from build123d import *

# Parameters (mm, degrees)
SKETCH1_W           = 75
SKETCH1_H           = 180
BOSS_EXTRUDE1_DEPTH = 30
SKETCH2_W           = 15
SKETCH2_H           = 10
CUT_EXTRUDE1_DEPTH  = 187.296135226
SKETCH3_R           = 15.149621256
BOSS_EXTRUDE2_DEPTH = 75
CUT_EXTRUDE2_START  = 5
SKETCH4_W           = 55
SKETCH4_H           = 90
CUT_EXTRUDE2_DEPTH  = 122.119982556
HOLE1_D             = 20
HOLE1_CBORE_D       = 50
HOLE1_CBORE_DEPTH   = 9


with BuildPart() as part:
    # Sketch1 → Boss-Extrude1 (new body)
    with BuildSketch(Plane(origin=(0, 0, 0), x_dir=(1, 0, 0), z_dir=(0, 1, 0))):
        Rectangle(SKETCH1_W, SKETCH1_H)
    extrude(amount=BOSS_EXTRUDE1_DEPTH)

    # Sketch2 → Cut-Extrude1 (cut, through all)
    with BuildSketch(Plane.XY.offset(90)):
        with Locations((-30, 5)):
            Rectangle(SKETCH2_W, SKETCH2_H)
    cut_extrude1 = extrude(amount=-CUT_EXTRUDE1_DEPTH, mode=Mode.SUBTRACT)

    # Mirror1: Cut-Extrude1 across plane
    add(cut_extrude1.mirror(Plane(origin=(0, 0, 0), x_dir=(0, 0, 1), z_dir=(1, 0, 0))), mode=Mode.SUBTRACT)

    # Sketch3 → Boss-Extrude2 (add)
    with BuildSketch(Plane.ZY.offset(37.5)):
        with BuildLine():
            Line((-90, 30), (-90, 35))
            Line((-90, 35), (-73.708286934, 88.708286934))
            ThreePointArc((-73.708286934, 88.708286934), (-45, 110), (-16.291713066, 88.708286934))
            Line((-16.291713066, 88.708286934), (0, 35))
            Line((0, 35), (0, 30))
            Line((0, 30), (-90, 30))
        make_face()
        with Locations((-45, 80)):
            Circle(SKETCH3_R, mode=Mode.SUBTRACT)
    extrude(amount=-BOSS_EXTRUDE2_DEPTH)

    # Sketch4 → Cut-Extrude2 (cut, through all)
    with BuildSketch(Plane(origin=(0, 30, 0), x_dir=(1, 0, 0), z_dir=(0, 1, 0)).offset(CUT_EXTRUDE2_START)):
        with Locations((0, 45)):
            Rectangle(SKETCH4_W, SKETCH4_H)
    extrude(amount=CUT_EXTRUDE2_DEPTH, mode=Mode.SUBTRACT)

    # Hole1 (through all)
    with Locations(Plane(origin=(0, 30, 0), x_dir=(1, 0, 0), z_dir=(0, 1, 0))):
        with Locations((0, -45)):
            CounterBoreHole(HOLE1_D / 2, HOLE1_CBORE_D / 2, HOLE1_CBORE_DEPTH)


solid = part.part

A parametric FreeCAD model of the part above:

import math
import FreeCAD as App
import Part
import Sketcher


def add_polygon(sketch, points):
    """Adds a closed chain of lines whose ends are joined by coincident constraints."""
    first, n = sketch.GeometryCount, len(points)
    for a, b in zip(points, points[1:] + points[:1]):
        sketch.addGeometry(Part.LineSegment(App.Vector(*a, 0), App.Vector(*b, 0)), False)
    for i in range(n):
        sketch.addConstraint(Sketcher.Constraint("Coincident", first + i, 2, first + (i + 1) % n, 1))

doc = App.newDocument("Part")
body = doc.addObject("PartDesign::Body", "Body")

sketch1 = body.newObject("Sketcher::SketchObject", "Sketch")
sketch1.AttachmentSupport = (doc.getObject("XZ_Plane"), [""])
sketch1.MapMode = "FlatFace"
add_polygon(sketch1, [(-38, -90), (-38, 90), (38, 90), (38, -90)])
sketch1.addConstraint(Sketcher.Constraint("Vertical", 0))
sketch1.addConstraint(Sketcher.Constraint("Horizontal", 1))
sketch1.addConstraint(Sketcher.Constraint("Vertical", 2))
sketch1.addConstraint(Sketcher.Constraint("Horizontal", 3))
sketch1.addConstraint(Sketcher.Constraint("Symmetric", 0, 2, 2, 2, -1, 1))
sketch1.addConstraint(Sketcher.Constraint("DistanceX", 1, 1, 1, 2, 75.0))
sketch1.addConstraint(Sketcher.Constraint("DistanceY", 0, 1, 0, 2, 180.0))
pad1 = body.newObject("PartDesign::Pad", "Pad")
pad1.Profile = sketch1
pad1.Length = 30
pad1.Reversed = True

sketch2 = body.newObject("Sketcher::SketchObject", "Sketch001")
sketch2.AttachmentSupport = (doc.getObject("XY_Plane"), [""])
sketch2.MapMode = "FlatFace"
sketch2.AttachmentOffset = App.Placement(App.Vector(0, 0, 90), App.Rotation())
add_polygon(sketch2, [(-38, 10), (-38, 0), (-22, 0), (-22, 10)])
sketch2.addConstraint(Sketcher.Constraint("Vertical", 0))
sketch2.addConstraint(Sketcher.Constraint("Horizontal", 1))
sketch2.addConstraint(Sketcher.Constraint("Vertical", 2))
sketch2.addConstraint(Sketcher.Constraint("Horizontal", 3))
sketch2.addConstraint(Sketcher.Constraint("PointOnObject", 0, 2, -1))
sketch2.addConstraint(Sketcher.Constraint("DistanceX", 1, 1, 1, 2, 15.0))
sketch2.addConstraint(Sketcher.Constraint("DistanceY", 0, 2, 0, 1, 10.0))
sketch2.addConstraint(Sketcher.Constraint("DistanceX", 0, 2, -1, 1, 37.5))
pocket1 = body.newObject("PartDesign::Pocket", "Pocket")
pocket1.Profile = sketch2
pocket1.Type = "ThroughAll"
doc.recompute()

mirrored = body.newObject("PartDesign::Mirrored", "Mirrored")
mirrored.Originals = [pocket1]
mirrored.MirrorPlane = (doc.getObject("YZ_Plane"), [""])
body.Tip = mirrored

sketch3 = body.newObject("Sketcher::SketchObject", "Sketch002")
sketch3.AttachmentSupport = (doc.getObject("YZ_Plane"), [""])
sketch3.MapMode = "FlatFace"
sketch3.AttachmentOffset = App.Placement(App.Vector(0, 0, -37.5), App.Rotation())
sketch3.addGeometry(Part.LineSegment(App.Vector(35, -90, 0), App.Vector(30, -90, 0)), False)
sketch3.addGeometry(Part.LineSegment(App.Vector(30, -90, 0), App.Vector(30, 0, 0)), False)
sketch3.addGeometry(Part.LineSegment(App.Vector(30, 0, 0), App.Vector(35, 0, 0)), False)
sketch3.addGeometry(Part.LineSegment(App.Vector(35, 0, 0), App.Vector(89, -16, 0)), False)
sketch3.addGeometry(Part.ArcOfCircle(Part.Circle(App.Vector(80, -45, 0), App.Vector(0, 0, 1), 30), math.radians(-73), math.radians(73)), False)
sketch3.addGeometry(Part.LineSegment(App.Vector(89, -74, 0), App.Vector(35, -90, 0)), False)
sketch3.addGeometry(Part.Circle(App.Vector(80, -45, 0), App.Vector(0, 0, 1), 15), False)
sketch3.addConstraint(Sketcher.Constraint("Coincident", 0, 2, 1, 1))
sketch3.addConstraint(Sketcher.Constraint("Coincident", 1, 2, 2, 1))
sketch3.addConstraint(Sketcher.Constraint("Coincident", 2, 2, 3, 1))
sketch3.addConstraint(Sketcher.Constraint("Tangent", 3, 2, 4, 2))
sketch3.addConstraint(Sketcher.Constraint("Tangent", 4, 1, 5, 1))
sketch3.addConstraint(Sketcher.Constraint("Coincident", 5, 2, 0, 1))
sketch3.addConstraint(Sketcher.Constraint("Horizontal", 0))
sketch3.addConstraint(Sketcher.Constraint("Vertical", 1))
sketch3.addConstraint(Sketcher.Constraint("Horizontal", 2))
sketch3.addConstraint(Sketcher.Constraint("Coincident", 6, 3, 4, 3))
sketch3.addConstraint(Sketcher.Constraint("PointOnObject", 1, 2, -1))
sketch3.addConstraint(Sketcher.Constraint("Vertical", 3, 2, 4, 1))
sketch3.addConstraint(Sketcher.Constraint("Vertical", 2, 2, 5, 2))
sketch3.addConstraint(Sketcher.Constraint("Radius", 4, 30.0))
sketch3.addConstraint(Sketcher.Constraint("DistanceX", 0, 2, 0, 1, 5.0))
sketch3.addConstraint(Sketcher.Constraint("DistanceY", 1, 1, 1, 2, 90.0))
sketch3.addConstraint(Sketcher.Constraint("DistanceX", -1, 1, 4, 3, 80.0))
sketch3.addConstraint(Sketcher.Constraint("DistanceX", -1, 1, 0, 2, 30.0))
sketch3.addConstraint(Sketcher.Constraint("Diameter", 6, 30.299243))
pad2 = body.newObject("PartDesign::Pad", "Pad001")
pad2.Profile = sketch3
pad2.Length = 75

sketch4 = body.newObject("Sketcher::SketchObject", "Sketch003")
sketch4.AttachmentSupport = (doc.getObject("XZ_Plane"), [""])
sketch4.MapMode = "FlatFace"
sketch4.AttachmentOffset = App.Placement(App.Vector(0, 0, -35), App.Rotation())
add_polygon(sketch4, [(-28, -90), (-28, 0), (28, 0), (28, -90)])
sketch4.addConstraint(Sketcher.Constraint("Vertical", 0))
sketch4.addConstraint(Sketcher.Constraint("Horizontal", 1))
sketch4.addConstraint(Sketcher.Constraint("Vertical", 2))
sketch4.addConstraint(Sketcher.Constraint("Horizontal", 3))
sketch4.addConstraint(Sketcher.Constraint("Symmetric", 0, 2, 1, 2, -1, 1))
sketch4.addConstraint(Sketcher.Constraint("DistanceX", 1, 1, 1, 2, 55.0))
sketch4.addConstraint(Sketcher.Constraint("DistanceY", 0, 1, 0, 2, 90.0))
pocket2 = body.newObject("PartDesign::Pocket", "Pocket001")
pocket2.Profile = sketch4
pocket2.Type = "ThroughAll"

sketch5 = body.newObject("Sketcher::SketchObject", "Sketch004")
sketch5.AttachmentSupport = (doc.getObject("XZ_Plane"), [""])
sketch5.MapMode = "FlatFace"
sketch5.AttachmentOffset = App.Placement(App.Vector(0, 0, -30), App.Rotation())
sketch5.addGeometry(Part.Circle(App.Vector(0, 45, 0), App.Vector(0, 0, 1), 10), False)
sketch5.addConstraint(Sketcher.Constraint("PointOnObject", 0, 3, -2))
sketch5.addConstraint(Sketcher.Constraint("Diameter", 0, 20.0))
sketch5.addConstraint(Sketcher.Constraint("DistanceY", -1, 1, 0, 3, 45.0))
doc.recompute()
hole = body.newObject("PartDesign::Hole", "Hole")
hole.Profile = sketch5
hole.ThreadType = "None"
hole.Diameter = 20
hole.DepthType = "ThroughAll"
hole.HoleCutType = "Counterbore"
hole.HoleCutDiameter = 50
hole.HoleCutDepth = 9
hole.Reversed = True

doc.recompute()
